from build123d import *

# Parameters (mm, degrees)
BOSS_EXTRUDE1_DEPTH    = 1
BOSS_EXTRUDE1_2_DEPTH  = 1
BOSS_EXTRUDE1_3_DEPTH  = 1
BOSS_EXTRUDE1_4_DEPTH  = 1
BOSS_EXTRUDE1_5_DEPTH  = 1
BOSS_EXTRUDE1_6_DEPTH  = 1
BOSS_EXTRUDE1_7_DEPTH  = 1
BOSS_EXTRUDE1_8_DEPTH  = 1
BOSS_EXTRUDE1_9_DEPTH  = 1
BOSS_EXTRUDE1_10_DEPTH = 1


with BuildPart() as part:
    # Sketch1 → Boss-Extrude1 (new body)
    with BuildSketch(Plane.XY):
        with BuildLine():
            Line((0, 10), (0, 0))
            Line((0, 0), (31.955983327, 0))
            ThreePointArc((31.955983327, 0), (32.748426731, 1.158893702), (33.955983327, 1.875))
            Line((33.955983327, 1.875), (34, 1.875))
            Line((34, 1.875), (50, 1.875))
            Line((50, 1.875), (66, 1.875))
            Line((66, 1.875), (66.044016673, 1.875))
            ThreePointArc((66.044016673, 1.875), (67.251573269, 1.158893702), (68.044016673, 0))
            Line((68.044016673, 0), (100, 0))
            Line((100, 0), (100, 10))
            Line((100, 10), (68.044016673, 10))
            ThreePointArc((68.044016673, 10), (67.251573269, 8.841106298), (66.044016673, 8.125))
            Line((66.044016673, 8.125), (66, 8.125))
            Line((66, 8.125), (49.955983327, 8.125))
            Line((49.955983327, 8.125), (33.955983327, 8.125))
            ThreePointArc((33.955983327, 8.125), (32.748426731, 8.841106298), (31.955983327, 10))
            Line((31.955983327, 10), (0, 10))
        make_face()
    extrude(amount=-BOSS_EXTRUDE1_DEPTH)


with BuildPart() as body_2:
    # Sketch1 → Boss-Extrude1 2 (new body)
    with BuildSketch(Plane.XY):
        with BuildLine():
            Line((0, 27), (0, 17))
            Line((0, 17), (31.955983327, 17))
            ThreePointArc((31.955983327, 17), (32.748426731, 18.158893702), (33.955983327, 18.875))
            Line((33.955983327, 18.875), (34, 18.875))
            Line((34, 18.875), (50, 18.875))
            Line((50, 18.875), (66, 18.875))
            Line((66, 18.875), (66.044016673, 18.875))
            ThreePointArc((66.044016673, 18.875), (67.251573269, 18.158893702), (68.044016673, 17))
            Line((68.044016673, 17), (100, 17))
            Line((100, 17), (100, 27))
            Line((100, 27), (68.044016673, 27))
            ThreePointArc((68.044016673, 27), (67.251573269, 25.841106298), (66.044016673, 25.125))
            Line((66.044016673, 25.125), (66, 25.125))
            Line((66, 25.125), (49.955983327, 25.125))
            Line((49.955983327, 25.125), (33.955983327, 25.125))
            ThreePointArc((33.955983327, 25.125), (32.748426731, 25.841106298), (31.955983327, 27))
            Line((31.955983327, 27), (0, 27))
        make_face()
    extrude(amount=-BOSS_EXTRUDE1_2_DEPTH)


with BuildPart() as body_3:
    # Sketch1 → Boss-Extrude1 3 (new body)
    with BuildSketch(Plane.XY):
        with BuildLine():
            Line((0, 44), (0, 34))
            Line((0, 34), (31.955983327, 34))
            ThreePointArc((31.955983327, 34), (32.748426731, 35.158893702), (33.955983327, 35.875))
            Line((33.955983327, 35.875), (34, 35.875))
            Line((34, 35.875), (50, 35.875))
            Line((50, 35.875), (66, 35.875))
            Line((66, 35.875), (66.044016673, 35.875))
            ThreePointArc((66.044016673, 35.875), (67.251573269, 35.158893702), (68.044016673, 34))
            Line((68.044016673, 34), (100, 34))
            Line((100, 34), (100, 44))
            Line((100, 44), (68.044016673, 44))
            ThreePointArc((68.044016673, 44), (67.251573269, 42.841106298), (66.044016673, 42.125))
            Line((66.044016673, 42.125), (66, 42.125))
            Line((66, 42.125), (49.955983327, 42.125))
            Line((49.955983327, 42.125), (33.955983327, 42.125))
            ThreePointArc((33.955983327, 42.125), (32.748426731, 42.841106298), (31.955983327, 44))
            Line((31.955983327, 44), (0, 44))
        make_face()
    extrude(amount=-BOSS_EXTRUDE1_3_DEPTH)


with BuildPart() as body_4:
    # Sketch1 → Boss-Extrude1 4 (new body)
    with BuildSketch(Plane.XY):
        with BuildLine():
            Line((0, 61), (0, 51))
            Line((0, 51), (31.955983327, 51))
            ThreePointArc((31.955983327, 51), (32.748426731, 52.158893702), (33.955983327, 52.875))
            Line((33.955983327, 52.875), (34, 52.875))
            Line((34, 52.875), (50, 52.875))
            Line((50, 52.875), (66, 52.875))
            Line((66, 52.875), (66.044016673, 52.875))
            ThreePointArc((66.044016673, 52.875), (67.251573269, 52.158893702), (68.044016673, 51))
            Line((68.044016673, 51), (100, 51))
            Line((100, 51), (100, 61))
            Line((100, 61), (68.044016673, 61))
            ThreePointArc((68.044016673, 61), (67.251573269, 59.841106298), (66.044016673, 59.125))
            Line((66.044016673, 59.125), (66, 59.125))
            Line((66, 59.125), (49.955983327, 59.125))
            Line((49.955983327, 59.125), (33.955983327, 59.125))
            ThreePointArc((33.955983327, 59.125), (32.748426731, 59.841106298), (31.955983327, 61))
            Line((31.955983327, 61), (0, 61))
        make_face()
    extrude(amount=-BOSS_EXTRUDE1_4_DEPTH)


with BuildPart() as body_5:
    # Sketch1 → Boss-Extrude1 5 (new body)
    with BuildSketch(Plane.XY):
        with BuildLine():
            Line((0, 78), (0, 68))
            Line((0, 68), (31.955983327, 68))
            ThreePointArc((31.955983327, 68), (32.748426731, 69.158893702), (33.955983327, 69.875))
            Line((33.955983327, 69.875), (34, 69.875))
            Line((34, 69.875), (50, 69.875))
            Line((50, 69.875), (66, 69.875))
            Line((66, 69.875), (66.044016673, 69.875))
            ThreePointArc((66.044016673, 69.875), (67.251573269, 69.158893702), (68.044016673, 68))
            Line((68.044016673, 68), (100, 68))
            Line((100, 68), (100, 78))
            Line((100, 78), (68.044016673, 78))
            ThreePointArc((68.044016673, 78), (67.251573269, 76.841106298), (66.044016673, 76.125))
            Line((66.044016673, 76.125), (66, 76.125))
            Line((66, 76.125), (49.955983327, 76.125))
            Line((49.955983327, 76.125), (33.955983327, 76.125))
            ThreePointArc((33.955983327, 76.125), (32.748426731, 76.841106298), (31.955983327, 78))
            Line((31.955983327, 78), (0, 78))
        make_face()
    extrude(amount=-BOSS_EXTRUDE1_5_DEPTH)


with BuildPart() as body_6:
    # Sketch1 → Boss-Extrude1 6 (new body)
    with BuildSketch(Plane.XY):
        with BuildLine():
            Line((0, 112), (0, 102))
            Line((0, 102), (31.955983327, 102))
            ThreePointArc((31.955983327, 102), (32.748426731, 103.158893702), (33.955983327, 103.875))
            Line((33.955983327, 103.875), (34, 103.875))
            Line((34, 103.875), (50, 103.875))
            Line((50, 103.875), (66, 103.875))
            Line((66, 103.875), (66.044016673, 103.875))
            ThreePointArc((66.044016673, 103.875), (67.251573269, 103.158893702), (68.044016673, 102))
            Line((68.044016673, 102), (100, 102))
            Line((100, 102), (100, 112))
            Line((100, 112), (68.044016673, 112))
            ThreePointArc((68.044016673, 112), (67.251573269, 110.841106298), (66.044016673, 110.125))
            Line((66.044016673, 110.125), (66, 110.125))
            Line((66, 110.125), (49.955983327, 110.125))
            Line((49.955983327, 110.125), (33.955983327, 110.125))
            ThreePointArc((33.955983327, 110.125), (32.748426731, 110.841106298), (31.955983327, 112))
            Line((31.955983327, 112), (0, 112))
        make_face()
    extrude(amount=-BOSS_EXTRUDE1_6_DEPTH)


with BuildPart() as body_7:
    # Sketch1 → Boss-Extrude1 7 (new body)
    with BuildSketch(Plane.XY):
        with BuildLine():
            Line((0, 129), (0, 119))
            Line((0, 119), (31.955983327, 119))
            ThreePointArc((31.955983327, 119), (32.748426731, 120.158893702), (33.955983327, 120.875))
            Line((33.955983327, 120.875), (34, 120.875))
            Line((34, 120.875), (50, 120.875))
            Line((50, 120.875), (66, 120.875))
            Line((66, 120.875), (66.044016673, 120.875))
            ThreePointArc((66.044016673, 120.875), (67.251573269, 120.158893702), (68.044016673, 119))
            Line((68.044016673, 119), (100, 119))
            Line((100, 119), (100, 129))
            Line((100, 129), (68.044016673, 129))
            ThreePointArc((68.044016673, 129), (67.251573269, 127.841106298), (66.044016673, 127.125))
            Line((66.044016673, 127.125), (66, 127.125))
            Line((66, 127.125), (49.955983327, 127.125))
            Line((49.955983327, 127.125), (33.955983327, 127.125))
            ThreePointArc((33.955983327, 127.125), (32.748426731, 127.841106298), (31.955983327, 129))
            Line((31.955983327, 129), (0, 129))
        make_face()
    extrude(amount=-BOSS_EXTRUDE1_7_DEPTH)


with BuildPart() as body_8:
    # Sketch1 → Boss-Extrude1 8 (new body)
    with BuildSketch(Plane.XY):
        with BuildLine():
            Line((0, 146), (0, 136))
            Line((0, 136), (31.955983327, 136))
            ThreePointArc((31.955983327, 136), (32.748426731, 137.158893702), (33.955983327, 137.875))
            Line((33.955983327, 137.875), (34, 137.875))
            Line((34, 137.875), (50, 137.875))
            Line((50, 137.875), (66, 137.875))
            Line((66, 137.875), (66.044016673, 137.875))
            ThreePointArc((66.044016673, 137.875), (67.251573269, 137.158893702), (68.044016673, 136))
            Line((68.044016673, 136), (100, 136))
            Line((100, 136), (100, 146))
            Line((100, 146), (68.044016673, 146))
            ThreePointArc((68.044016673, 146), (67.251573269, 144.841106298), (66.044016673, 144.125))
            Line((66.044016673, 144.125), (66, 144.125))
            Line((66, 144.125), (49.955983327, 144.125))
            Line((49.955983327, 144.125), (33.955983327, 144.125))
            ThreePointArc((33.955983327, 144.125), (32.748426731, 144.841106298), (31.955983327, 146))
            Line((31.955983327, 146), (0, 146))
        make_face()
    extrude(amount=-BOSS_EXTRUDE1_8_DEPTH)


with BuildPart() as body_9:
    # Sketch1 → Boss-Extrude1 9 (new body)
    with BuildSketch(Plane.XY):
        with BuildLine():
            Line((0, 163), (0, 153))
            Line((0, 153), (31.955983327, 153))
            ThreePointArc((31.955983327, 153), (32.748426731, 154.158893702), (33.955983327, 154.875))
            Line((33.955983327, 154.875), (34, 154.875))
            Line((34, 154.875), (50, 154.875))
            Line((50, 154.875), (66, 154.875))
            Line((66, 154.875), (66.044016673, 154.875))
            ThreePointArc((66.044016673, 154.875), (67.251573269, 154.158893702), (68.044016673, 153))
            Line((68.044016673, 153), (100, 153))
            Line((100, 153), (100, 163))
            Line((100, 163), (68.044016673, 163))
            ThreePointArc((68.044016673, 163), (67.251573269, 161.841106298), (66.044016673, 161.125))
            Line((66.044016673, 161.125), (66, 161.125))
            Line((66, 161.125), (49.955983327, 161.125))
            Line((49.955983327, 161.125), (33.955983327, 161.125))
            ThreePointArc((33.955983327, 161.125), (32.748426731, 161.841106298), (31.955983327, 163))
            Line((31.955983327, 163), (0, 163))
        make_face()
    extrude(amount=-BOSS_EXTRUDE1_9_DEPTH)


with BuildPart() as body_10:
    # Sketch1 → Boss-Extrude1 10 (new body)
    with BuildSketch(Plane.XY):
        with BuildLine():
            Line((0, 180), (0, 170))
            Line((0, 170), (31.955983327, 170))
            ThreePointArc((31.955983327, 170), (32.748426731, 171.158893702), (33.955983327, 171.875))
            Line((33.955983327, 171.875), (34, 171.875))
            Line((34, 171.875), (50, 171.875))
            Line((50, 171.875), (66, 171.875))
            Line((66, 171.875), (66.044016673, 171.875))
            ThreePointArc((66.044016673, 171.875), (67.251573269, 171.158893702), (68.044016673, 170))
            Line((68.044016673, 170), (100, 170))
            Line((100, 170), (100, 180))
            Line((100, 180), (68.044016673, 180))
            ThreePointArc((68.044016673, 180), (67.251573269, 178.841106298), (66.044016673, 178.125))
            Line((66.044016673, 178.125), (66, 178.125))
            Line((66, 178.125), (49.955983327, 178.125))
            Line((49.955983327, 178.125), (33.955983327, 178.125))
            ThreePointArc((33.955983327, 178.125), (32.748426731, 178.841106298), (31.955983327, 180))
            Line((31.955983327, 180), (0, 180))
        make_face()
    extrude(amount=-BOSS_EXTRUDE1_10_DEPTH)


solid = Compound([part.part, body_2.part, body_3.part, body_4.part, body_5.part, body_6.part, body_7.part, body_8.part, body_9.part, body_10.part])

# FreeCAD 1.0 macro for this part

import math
import FreeCAD as App
import Part
import Sketcher
from FreeCAD import Vector

doc = App.newDocument("Part")
body = doc.addObject("PartDesign::Body", "Body")

# Sketch on XY plane
sketch1 = body.newObject("Sketcher::SketchObject", "Sketch")
sketch1.AttachmentSupport = (doc.getObject("XY_Plane"), [""])
sketch1.MapMode = "FlatFace"
sketch1.addGeometry(Part.LineSegment(Vector(0, 10, 0), Vector(0, 0, 0)), False)
sketch1.addGeometry(Part.LineSegment(Vector(0, 0, 0), Vector(32, 0, 0)), False)
sketch1.addGeometry(Part.ArcOfCircle(Part.Circle(Vector(35, -1.2, 0), Vector(0, 0, 1), 3.2), math.radians(108), math.radians(158)), False)
sketch1.addGeometry(Part.LineSegment(Vector(34, 1.9, 0), Vector(66, 1.9, 0)), False)
sketch1.addGeometry(Part.ArcOfCircle(Part.Circle(Vector(65, -1.2, 0), Vector(0, 0, 1), 3.2), math.radians(22), math.radians(72)), False)
sketch1.addGeometry(Part.LineSegment(Vector(68, 0, 0), Vector(100, 0, 0)), False)
sketch1.addGeometry(Part.LineSegment(Vector(100, 0, 0), Vector(100, 10, 0)), False)
sketch1.addGeometry(Part.LineSegment(Vector(100, 10, 0), Vector(68, 10, 0)), False)
sketch1.addGeometry(Part.ArcOfCircle(Part.Circle(Vector(65, 11.2, 0), Vector(0, 0, 1), 3.2), math.radians(-72), math.radians(-22)), False)
sketch1.addGeometry(Part.LineSegment(Vector(66, 8.1, 0), Vector(34, 8.1, 0)), False)
sketch1.addGeometry(Part.ArcOfCircle(Part.Circle(Vector(35, 11.2, 0), Vector(0, 0, 1), 3.2), math.radians(-158), math.radians(-108)), False)
sketch1.addGeometry(Part.LineSegment(Vector(32, 10, 0), Vector(0, 10, 0)), False)
sketch1.addConstraint(Sketcher.Constraint("Coincident", 0, 2, 1, 1))
sketch1.addConstraint(Sketcher.Constraint("Coincident", 1, 2, 2, 2))
sketch1.addConstraint(Sketcher.Constraint("Coincident", 2, 1, 3, 1))
sketch1.addConstraint(Sketcher.Constraint("Coincident", 3, 2, 4, 2))
sketch1.addConstraint(Sketcher.Constraint("Coincident", 4, 1, 5, 1))
sketch1.addConstraint(Sketcher.Constraint("Coincident", 5, 2, 6, 1))
sketch1.addConstraint(Sketcher.Constraint("Coincident", 6, 2, 7, 1))
sketch1.addConstraint(Sketcher.Constraint("Coincident", 7, 2, 8, 2))
sketch1.addConstraint(Sketcher.Constraint("Coincident", 8, 1, 9, 1))
sketch1.addConstraint(Sketcher.Constraint("Coincident", 9, 2, 10, 2))
sketch1.addConstraint(Sketcher.Constraint("Coincident", 10, 1, 11, 1))
sketch1.addConstraint(Sketcher.Constraint("Coincident", 11, 2, 0, 1))
sketch1.addConstraint(Sketcher.Constraint("Vertical", 0))
sketch1.addConstraint(Sketcher.Constraint("Horizontal", 1))
sketch1.addConstraint(Sketcher.Constraint("Horizontal", 3))
sketch1.addConstraint(Sketcher.Constraint("Horizontal", 5))
sketch1.addConstraint(Sketcher.Constraint("Vertical", 6))
sketch1.addConstraint(Sketcher.Constraint("Horizontal", 7))
sketch1.addConstraint(Sketcher.Constraint("Horizontal", 9))
sketch1.addConstraint(Sketcher.Constraint("Horizontal", 11))
sketch1.addConstraint(Sketcher.Constraint("Coincident", 0, 2, -1, 1))
sketch1.addConstraint(Sketcher.Constraint("Equal", 2, 4))
sketch1.addConstraint(Sketcher.Constraint("Equal", 4, 8))
sketch1.addConstraint(Sketcher.Constraint("Equal", 8, 10))
sketch1.addConstraint(Sketcher.Constraint("PointOnObject", 4, 1, -1))
sketch1.addConstraint(Sketcher.Constraint("Horizontal", 2, 3, 4, 3))
sketch1.addConstraint(Sketcher.Constraint("Horizontal", 8, 3, 10, 3))
sketch1.addConstraint(Sketcher.Constraint("Horizontal", 7, 2, 10, 1))
sketch1.addConstraint(Sketcher.Constraint("Vertical", 4, 3, 8, 3))
sketch1.addConstraint(Sketcher.Constraint("Vertical", 2, 3, 10, 3))
sketch1.addConstraint(Sketcher.Constraint("Vertical", 4, 1, 7, 2))
sketch1.addConstraint(Sketcher.Constraint("Vertical", 3, 2, 8, 1))
sketch1.addConstraint(Sketcher.Constraint("Equal", 1, 5))
sketch1.addConstraint(Sketcher.Constraint("DistanceY", 0, 2, 0, 1, 10.0))
sketch1.addConstraint(Sketcher.Constraint("DistanceX", -1, 1, 5, 2, 100.0))
sketch1.addConstraint(Sketcher.Constraint("DistanceX", 1, 2, 2, 1, 2.0))
sketch1.addConstraint(Sketcher.Constraint("DistanceY", 3, 2, 8, 1, 6.25))
sketch1.addConstraint(Sketcher.Constraint("Radius", 2, 3.247425))
sketch1.addConstraint(Sketcher.Constraint("DistanceX", 1, 1, 1, 2, 31.955983))
pad1 = body.newObject("PartDesign::Pad", "Pad")
pad1.Profile = sketch1
pad1.Length = 1
pad1.Reversed = True
body2 = doc.addObject("PartDesign::Body", "Body001")

# Sketch on XY plane
sketch2 = body2.newObject("Sketcher::SketchObject", "Sketch001")
sketch2.AttachmentSupport = (doc.getObject("XY_Plane001"), [""])
sketch2.MapMode = "FlatFace"
sketch2.addGeometry(Part.LineSegment(Vector(0, 27, 0), Vector(0, 17, 0)), False)
sketch2.addGeometry(Part.LineSegment(Vector(0, 17, 0), Vector(32, 17, 0)), False)
sketch2.addGeometry(Part.ArcOfCircle(Part.Circle(Vector(35, 15.8, 0), Vector(0, 0, 1), 3.2), math.radians(108), math.radians(158)), False)
sketch2.addGeometry(Part.LineSegment(Vector(34, 18.9, 0), Vector(66, 18.9, 0)), False)
sketch2.addGeometry(Part.ArcOfCircle(Part.Circle(Vector(65, 15.8, 0), Vector(0, 0, 1), 3.2), math.radians(22), math.radians(72)), False)
sketch2.addGeometry(Part.LineSegment(Vector(68, 17, 0), Vector(100, 17, 0)), False)
sketch2.addGeometry(Part.LineSegment(Vector(100, 17, 0), Vector(100, 27, 0)), False)
sketch2.addGeometry(Part.LineSegment(Vector(100, 27, 0), Vector(68, 27, 0)), False)
sketch2.addGeometry(Part.ArcOfCircle(Part.Circle(Vector(65, 28.2, 0), Vector(0, 0, 1), 3.2), math.radians(-72), math.radians(-22)), False)
sketch2.addGeometry(Part.LineSegment(Vector(66, 25.1, 0), Vector(34, 25.1, 0)), False)
sketch2.addGeometry(Part.ArcOfCircle(Part.Circle(Vector(35, 28.2, 0), Vector(0, 0, 1), 3.2), math.radians(-158), math.radians(-108)), False)
sketch2.addGeometry(Part.LineSegment(Vector(32, 27, 0), Vector(0, 27, 0)), False)
sketch2.addConstraint(Sketcher.Constraint("Coincident", 0, 2, 1, 1))
sketch2.addConstraint(Sketcher.Constraint("Coincident", 1, 2, 2, 2))
sketch2.addConstraint(Sketcher.Constraint("Coincident", 2, 1, 3, 1))
sketch2.addConstraint(Sketcher.Constraint("Coincident", 3, 2, 4, 2))
sketch2.addConstraint(Sketcher.Constraint("Coincident", 4, 1, 5, 1))
sketch2.addConstraint(Sketcher.Constraint("Coincident", 5, 2, 6, 1))
sketch2.addConstraint(Sketcher.Constraint("Coincident", 6, 2, 7, 1))
sketch2.addConstraint(Sketcher.Constraint("Coincident", 7, 2, 8, 2))
sketch2.addConstraint(Sketcher.Constraint("Coincident", 8, 1, 9, 1))
sketch2.addConstraint(Sketcher.Constraint("Coincident", 9, 2, 10, 2))
sketch2.addConstraint(Sketcher.Constraint("Coincident", 10, 1, 11, 1))
sketch2.addConstraint(Sketcher.Constraint("Coincident", 11, 2, 0, 1))
sketch2.addConstraint(Sketcher.Constraint("Vertical", 0))
sketch2.addConstraint(Sketcher.Constraint("Horizontal", 1))
sketch2.addConstraint(Sketcher.Constraint("Horizontal", 3))
sketch2.addConstraint(Sketcher.Constraint("Horizontal", 5))
sketch2.addConstraint(Sketcher.Constraint("Vertical", 6))
sketch2.addConstraint(Sketcher.Constraint("Horizontal", 7))
sketch2.addConstraint(Sketcher.Constraint("Horizontal", 9))
sketch2.addConstraint(Sketcher.Constraint("Horizontal", 11))
sketch2.addConstraint(Sketcher.Constraint("Equal", 2, 4))
sketch2.addConstraint(Sketcher.Constraint("Equal", 4, 8))
sketch2.addConstraint(Sketcher.Constraint("Equal", 8, 10))
sketch2.addConstraint(Sketcher.Constraint("PointOnObject", 0, 2, -2))
sketch2.addConstraint(Sketcher.Constraint("Horizontal", 2, 3, 4, 3))
sketch2.addConstraint(Sketcher.Constraint("Horizontal", 8, 3, 10, 3))
sketch2.addConstraint(Sketcher.Constraint("Horizontal", 1, 2, 4, 1))
sketch2.addConstraint(Sketcher.Constraint("Horizontal", 7, 2, 10, 1))
sketch2.addConstraint(Sketcher.Constraint("Vertical", 4, 3, 8, 3))
sketch2.addConstraint(Sketcher.Constraint("Vertical", 2, 3, 10, 3))
sketch2.addConstraint(Sketcher.Constraint("Vertical", 4, 1, 7, 2))
sketch2.addConstraint(Sketcher.Constraint("Vertical", 3, 2, 8, 1))
sketch2.addConstraint(Sketcher.Constraint("Equal", 1, 5))
sketch2.addConstraint(Sketcher.Constraint("DistanceY", 0, 2, 0, 1, 10.0))
sketch2.addConstraint(Sketcher.Constraint("DistanceY", -1, 1, 0, 2, 17.0))
sketch2.addConstraint(Sketcher.Constraint("DistanceX", -1, 1, 5, 2, 100.0))
sketch2.addConstraint(Sketcher.Constraint("DistanceX", 1, 2, 2, 1, 2.0))
sketch2.addConstraint(Sketcher.Constraint("DistanceY", 3, 2, 8, 1, 6.25))
sketch2.addConstraint(Sketcher.Constraint("Radius", 2, 3.247425))
sketch2.addConstraint(Sketcher.Constraint("DistanceX", 1, 1, 1, 2, 31.955983))
pad2 = body2.newObject("PartDesign::Pad", "Pad001")
pad2.Profile = sketch2
pad2.Length = 1
pad2.Reversed = True
body3 = doc.addObject("PartDesign::Body", "Body002")

# Sketch on XY plane
sketch3 = body3.newObject("Sketcher::SketchObject", "Sketch002")
sketch3.AttachmentSupport = (doc.getObject("XY_Plane002"), [""])
sketch3.MapMode = "FlatFace"
sketch3.addGeometry(Part.LineSegment(Vector(0, 44, 0), Vector(0, 34, 0)), False)
sketch3.addGeometry(Part.LineSegment(Vector(0, 34, 0), Vector(32, 34, 0)), False)
sketch3.addGeometry(Part.ArcOfCircle(Part.Circle(Vector(35, 32.8, 0), Vector(0, 0, 1), 3.2), math.radians(108), math.radians(158)), False)
sketch3.addGeometry(Part.LineSegment(Vector(34, 35.9, 0), Vector(66, 35.9, 0)), False)
sketch3.addGeometry(Part.ArcOfCircle(Part.Circle(Vector(65, 32.8, 0), Vector(0, 0, 1), 3.2), math.radians(22), math.radians(72)), False)
sketch3.addGeometry(Part.LineSegment(Vector(68, 34, 0), Vector(100, 34, 0)), False)
sketch3.addGeometry(Part.LineSegment(Vector(100, 34, 0), Vector(100, 44, 0)), False)
sketch3.addGeometry(Part.LineSegment(Vector(100, 44, 0), Vector(68, 44, 0)), False)
sketch3.addGeometry(Part.ArcOfCircle(Part.Circle(Vector(65, 45.2, 0), Vector(0, 0, 1), 3.2), math.radians(-72), math.radians(-22)), False)
sketch3.addGeometry(Part.LineSegment(Vector(66, 42.1, 0), Vector(34, 42.1, 0)), False)
sketch3.addGeometry(Part.ArcOfCircle(Part.Circle(Vector(35, 45.2, 0), Vector(0, 0, 1), 3.2), math.radians(-158), math.radians(-108)), False)
sketch3.addGeometry(Part.LineSegment(Vector(32, 44, 0), Vector(0, 44, 0)), False)
sketch3.addConstraint(Sketcher.Constraint("Coincident", 0, 2, 1, 1))
sketch3.addConstraint(Sketcher.Constraint("Coincident", 1, 2, 2, 2))
sketch3.addConstraint(Sketcher.Constraint("Coincident", 2, 1, 3, 1))
sketch3.addConstraint(Sketcher.Constraint("Coincident", 3, 2, 4, 2))
sketch3.addConstraint(Sketcher.Constraint("Coincident", 4, 1, 5, 1))
sketch3.addConstraint(Sketcher.Constraint("Coincident", 5, 2, 6, 1))
sketch3.addConstraint(Sketcher.Constraint("Coincident", 6, 2, 7, 1))
sketch3.addConstraint(Sketcher.Constraint("Coincident", 7, 2, 8, 2))
sketch3.addConstraint(Sketcher.Constraint("Coincident", 8, 1, 9, 1))
sketch3.addConstraint(Sketcher.Constraint("Coincident", 9, 2, 10, 2))
sketch3.addConstraint(Sketcher.Constraint("Coincident", 10, 1, 11, 1))
sketch3.addConstraint(Sketcher.Constraint("Coincident", 11, 2, 0, 1))
sketch3.addConstraint(Sketcher.Constraint("Vertical", 0))
sketch3.addConstraint(Sketcher.Constraint("Horizontal", 1))
sketch3.addConstraint(Sketcher.Constraint("Horizontal", 3))
sketch3.addConstraint(Sketcher.Constraint("Horizontal", 5))
sketch3.addConstraint(Sketcher.Constraint("Vertical", 6))
sketch3.addConstraint(Sketcher.Constraint("Horizontal", 7))
sketch3.addConstraint(Sketcher.Constraint("Horizontal", 9))
sketch3.addConstraint(Sketcher.Constraint("Horizontal", 11))
sketch3.addConstraint(Sketcher.Constraint("Equal", 2, 4))
sketch3.addConstraint(Sketcher.Constraint("Equal", 4, 8))
sketch3.addConstraint(Sketcher.Constraint("Equal", 8, 10))
sketch3.addConstraint(Sketcher.Constraint("PointOnObject", 0, 2, -2))
sketch3.addConstraint(Sketcher.Constraint("Horizontal", 2, 3, 4, 3))
sketch3.addConstraint(Sketcher.Constraint("Horizontal", 8, 3, 10, 3))
sketch3.addConstraint(Sketcher.Constraint("Horizontal", 1, 2, 4, 1))
sketch3.addConstraint(Sketcher.Constraint("Horizontal", 7, 2, 10, 1))
sketch3.addConstraint(Sketcher.Constraint("Vertical", 4, 3, 8, 3))
sketch3.addConstraint(Sketcher.Constraint("Vertical", 2, 3, 10, 3))
sketch3.addConstraint(Sketcher.Constraint("Vertical", 4, 1, 7, 2))
sketch3.addConstraint(Sketcher.Constraint("Vertical", 3, 2, 8, 1))
sketch3.addConstraint(Sketcher.Constraint("Equal", 1, 5))
sketch3.addConstraint(Sketcher.Constraint("DistanceY", 0, 2, 0, 1, 10.0))
sketch3.addConstraint(Sketcher.Constraint("DistanceY", -1, 1, 0, 2, 34.0))
sketch3.addConstraint(Sketcher.Constraint("DistanceX", -1, 1, 5, 2, 100.0))
sketch3.addConstraint(Sketcher.Constraint("DistanceX", 1, 2, 2, 1, 2.0))
sketch3.addConstraint(Sketcher.Constraint("DistanceY", 3, 2, 8, 1, 6.25))
sketch3.addConstraint(Sketcher.Constraint("Radius", 2, 3.247425))
sketch3.addConstraint(Sketcher.Constraint("DistanceX", 1, 1, 1, 2, 31.955983))
pad3 = body3.newObject("PartDesign::Pad", "Pad002")
pad3.Profile = sketch3
pad3.Length = 1
pad3.Reversed = True
body4 = doc.addObject("PartDesign::Body", "Body003")

# Sketch on XY plane
sketch4 = body4.newObject("Sketcher::SketchObject", "Sketch003")
sketch4.AttachmentSupport = (doc.getObject("XY_Plane003"), [""])
sketch4.MapMode = "FlatFace"
sketch4.addGeometry(Part.LineSegment(Vector(0, 61, 0), Vector(0, 51, 0)), False)
sketch4.addGeometry(Part.LineSegment(Vector(0, 51, 0), Vector(32, 51, 0)), False)
sketch4.addGeometry(Part.ArcOfCircle(Part.Circle(Vector(35, 49.8, 0), Vector(0, 0, 1), 3.2), math.radians(108), math.radians(158)), False)
sketch4.addGeometry(Part.LineSegment(Vector(34, 52.9, 0), Vector(66, 52.9, 0)), False)
sketch4.addGeometry(Part.ArcOfCircle(Part.Circle(Vector(65, 49.8, 0), Vector(0, 0, 1), 3.2), math.radians(22), math.radians(72)), False)
sketch4.addGeometry(Part.LineSegment(Vector(68, 51, 0), Vector(100, 51, 0)), False)
sketch4.addGeometry(Part.LineSegment(Vector(100, 51, 0), Vector(100, 61, 0)), False)
sketch4.addGeometry(Part.LineSegment(Vector(100, 61, 0), Vector(68, 61, 0)), False)
sketch4.addGeometry(Part.ArcOfCircle(Part.Circle(Vector(65, 62.2, 0), Vector(0, 0, 1), 3.2), math.radians(-72), math.radians(-22)), False)
sketch4.addGeometry(Part.LineSegment(Vector(66, 59.1, 0), Vector(34, 59.1, 0)), False)
sketch4.addGeometry(Part.ArcOfCircle(Part.Circle(Vector(35, 62.2, 0), Vector(0, 0, 1), 3.2), math.radians(-158), math.radians(-108)), False)
sketch4.addGeometry(Part.LineSegment(Vector(32, 61, 0), Vector(0, 61, 0)), False)
sketch4.addConstraint(Sketcher.Constraint("Coincident", 0, 2, 1, 1))
sketch4.addConstraint(Sketcher.Constraint("Coincident", 1, 2, 2, 2))
sketch4.addConstraint(Sketcher.Constraint("Coincident", 2, 1, 3, 1))
sketch4.addConstraint(Sketcher.Constraint("Coincident", 3, 2, 4, 2))
sketch4.addConstraint(Sketcher.Constraint("Coincident", 4, 1, 5, 1))
sketch4.addConstraint(Sketcher.Constraint("Coincident", 5, 2, 6, 1))
sketch4.addConstraint(Sketcher.Constraint("Coincident", 6, 2, 7, 1))
sketch4.addConstraint(Sketcher.Constraint("Coincident", 7, 2, 8, 2))
sketch4.addConstraint(Sketcher.Constraint("Coincident", 8, 1, 9, 1))
sketch4.addConstraint(Sketcher.Constraint("Coincident", 9, 2, 10, 2))
sketch4.addConstraint(Sketcher.Constraint("Coincident", 10, 1, 11, 1))
sketch4.addConstraint(Sketcher.Constraint("Coincident", 11, 2, 0, 1))
sketch4.addConstraint(Sketcher.Constraint("Vertical", 0))
sketch4.addConstraint(Sketcher.Constraint("Horizontal", 1))
sketch4.addConstraint(Sketcher.Constraint("Horizontal", 3))
sketch4.addConstraint(Sketcher.Constraint("Horizontal", 5))
sketch4.addConstraint(Sketcher.Constraint("Vertical", 6))
sketch4.addConstraint(Sketcher.Constraint("Horizontal", 7))
sketch4.addConstraint(Sketcher.Constraint("Horizontal", 9))
sketch4.addConstraint(Sketcher.Constraint("Horizontal", 11))
sketch4.addConstraint(Sketcher.Constraint("Equal", 2, 4))
sketch4.addConstraint(Sketcher.Constraint("Equal", 4, 8))
sketch4.addConstraint(Sketcher.Constraint("Equal", 8, 10))
sketch4.addConstraint(Sketcher.Constraint("PointOnObject", 0, 2, -2))
sketch4.addConstraint(Sketcher.Constraint("Horizontal", 2, 3, 4, 3))
sketch4.addConstraint(Sketcher.Constraint("Horizontal", 8, 3, 10, 3))
sketch4.addConstraint(Sketcher.Constraint("Horizontal", 1, 2, 4, 1))
sketch4.addConstraint(Sketcher.Constraint("Horizontal", 7, 2, 10, 1))
sketch4.addConstraint(Sketcher.Constraint("Vertical", 4, 3, 8, 3))
sketch4.addConstraint(Sketcher.Constraint("Vertical", 2, 3, 10, 3))
sketch4.addConstraint(Sketcher.Constraint("Vertical", 4, 1, 7, 2))
sketch4.addConstraint(Sketcher.Constraint("Vertical", 3, 2, 8, 1))
sketch4.addConstraint(Sketcher.Constraint("Equal", 1, 5))
sketch4.addConstraint(Sketcher.Constraint("DistanceY", 0, 2, 0, 1, 10.0))
sketch4.addConstraint(Sketcher.Constraint("DistanceY", -1, 1, 0, 2, 51.0))
sketch4.addConstraint(Sketcher.Constraint("DistanceX", -1, 1, 5, 2, 100.0))
sketch4.addConstraint(Sketcher.Constraint("DistanceX", 1, 2, 2, 1, 2.0))
sketch4.addConstraint(Sketcher.Constraint("DistanceY", 3, 2, 8, 1, 6.25))
sketch4.addConstraint(Sketcher.Constraint("Radius", 2, 3.247425))
sketch4.addConstraint(Sketcher.Constraint("DistanceX", 1, 1, 1, 2, 31.955983))
pad4 = body4.newObject("PartDesign::Pad", "Pad003")
pad4.Profile = sketch4
pad4.Length = 1
pad4.Reversed = True
body5 = doc.addObject("PartDesign::Body", "Body004")

# Sketch on XY plane
sketch5 = body5.newObject("Sketcher::SketchObject", "Sketch004")
sketch5.AttachmentSupport = (doc.getObject("XY_Plane004"), [""])
sketch5.MapMode = "FlatFace"
sketch5.addGeometry(Part.LineSegment(Vector(0, 78, 0), Vector(0, 68, 0)), False)
sketch5.addGeometry(Part.LineSegment(Vector(0, 68, 0), Vector(32, 68, 0)), False)
sketch5.addGeometry(Part.ArcOfCircle(Part.Circle(Vector(35, 66.8, 0), Vector(0, 0, 1), 3.2), math.radians(108), math.radians(158)), False)
sketch5.addGeometry(Part.LineSegment(Vector(34, 69.9, 0), Vector(66, 69.9, 0)), False)
sketch5.addGeometry(Part.ArcOfCircle(Part.Circle(Vector(65, 66.8, 0), Vector(0, 0, 1), 3.2), math.radians(22), math.radians(72)), False)
sketch5.addGeometry(Part.LineSegment(Vector(68, 68, 0), Vector(100, 68, 0)), False)
sketch5.addGeometry(Part.LineSegment(Vector(100, 68, 0), Vector(100, 78, 0)), False)
sketch5.addGeometry(Part.LineSegment(Vector(100, 78, 0), Vector(68, 78, 0)), False)
sketch5.addGeometry(Part.ArcOfCircle(Part.Circle(Vector(65, 79.2, 0), Vector(0, 0, 1), 3.2), math.radians(-72), math.radians(-22)), False)
sketch5.addGeometry(Part.LineSegment(Vector(66, 76.1, 0), Vector(34, 76.1, 0)), False)
sketch5.addGeometry(Part.ArcOfCircle(Part.Circle(Vector(35, 79.2, 0), Vector(0, 0, 1), 3.2), math.radians(-158), math.radians(-108)), False)
sketch5.addGeometry(Part.LineSegment(Vector(32, 78, 0), Vector(0, 78, 0)), False)
sketch5.addConstraint(Sketcher.Constraint("Coincident", 0, 2, 1, 1))
sketch5.addConstraint(Sketcher.Constraint("Coincident", 1, 2, 2, 2))
sketch5.addConstraint(Sketcher.Constraint("Coincident", 2, 1, 3, 1))
sketch5.addConstraint(Sketcher.Constraint("Coincident", 3, 2, 4, 2))
sketch5.addConstraint(Sketcher.Constraint("Coincident", 4, 1, 5, 1))
sketch5.addConstraint(Sketcher.Constraint("Coincident", 5, 2, 6, 1))
sketch5.addConstraint(Sketcher.Constraint("Coincident", 6, 2, 7, 1))
sketch5.addConstraint(Sketcher.Constraint("Coincident", 7, 2, 8, 2))
sketch5.addConstraint(Sketcher.Constraint("Coincident", 8, 1, 9, 1))
sketch5.addConstraint(Sketcher.Constraint("Coincident", 9, 2, 10, 2))
sketch5.addConstraint(Sketcher.Constraint("Coincident", 10, 1, 11, 1))
sketch5.addConstraint(Sketcher.Constraint("Coincident", 11, 2, 0, 1))
sketch5.addConstraint(Sketcher.Constraint("Vertical", 0))
sketch5.addConstraint(Sketcher.Constraint("Horizontal", 1))
sketch5.addConstraint(Sketcher.Constraint("Horizontal", 3))
sketch5.addConstraint(Sketcher.Constraint("Horizontal", 5))
sketch5.addConstraint(Sketcher.Constraint("Vertical", 6))
sketch5.addConstraint(Sketcher.Constraint("Horizontal", 7))
sketch5.addConstraint(Sketcher.Constraint("Horizontal", 9))
sketch5.addConstraint(Sketcher.Constraint("Horizontal", 11))
sketch5.addConstraint(Sketcher.Constraint("Equal", 2, 4))
sketch5.addConstraint(Sketcher.Constraint("Equal", 4, 8))
sketch5.addConstraint(Sketcher.Constraint("Equal", 8, 10))
sketch5.addConstraint(Sketcher.Constraint("PointOnObject", 0, 2, -2))
sketch5.addConstraint(Sketcher.Constraint("Horizontal", 2, 3, 4, 3))
sketch5.addConstraint(Sketcher.Constraint("Horizontal", 8, 3, 10, 3))
sketch5.addConstraint(Sketcher.Constraint("Horizontal", 1, 2, 4, 1))
sketch5.addConstraint(Sketcher.Constraint("Horizontal", 7, 2, 10, 1))
sketch5.addConstraint(Sketcher.Constraint("Vertical", 4, 3, 8, 3))
sketch5.addConstraint(Sketcher.Constraint("Vertical", 2, 3, 10, 3))
sketch5.addConstraint(Sketcher.Constraint("Vertical", 4, 1, 7, 2))
sketch5.addConstraint(Sketcher.Constraint("Vertical", 3, 2, 8, 1))
sketch5.addConstraint(Sketcher.Constraint("Equal", 1, 5))
sketch5.addConstraint(Sketcher.Constraint("DistanceY", 0, 2, 0, 1, 10.0))
sketch5.addConstraint(Sketcher.Constraint("DistanceY", -1, 1, 0, 2, 68.0))
sketch5.addConstraint(Sketcher.Constraint("DistanceX", -1, 1, 5, 2, 100.0))
sketch5.addConstraint(Sketcher.Constraint("DistanceX", 1, 2, 2, 1, 2.0))
sketch5.addConstraint(Sketcher.Constraint("DistanceY", 3, 2, 8, 1, 6.25))
sketch5.addConstraint(Sketcher.Constraint("Radius", 2, 3.247425))
sketch5.addConstraint(Sketcher.Constraint("DistanceX", 1, 1, 1, 2, 31.955983))
pad5 = body5.newObject("PartDesign::Pad", "Pad004")
pad5.Profile = sketch5
pad5.Length = 1
pad5.Reversed = True
body6 = doc.addObject("PartDesign::Body", "Body005")

# Sketch on XY plane
sketch6 = body6.newObject("Sketcher::SketchObject", "Sketch005")
sketch6.AttachmentSupport = (doc.getObject("XY_Plane005"), [""])
sketch6.MapMode = "FlatFace"
sketch6.addGeometry(Part.LineSegment(Vector(0, 112, 0), Vector(0, 102, 0)), False)
sketch6.addGeometry(Part.LineSegment(Vector(0, 102, 0), Vector(32, 102, 0)), False)
sketch6.addGeometry(Part.ArcOfCircle(Part.Circle(Vector(35, 100.8, 0), Vector(0, 0, 1), 3.2), math.radians(108), math.radians(158)), False)
sketch6.addGeometry(Part.LineSegment(Vector(34, 103.9, 0), Vector(66, 103.9, 0)), False)
sketch6.addGeometry(Part.ArcOfCircle(Part.Circle(Vector(65, 100.8, 0), Vector(0, 0, 1), 3.2), math.radians(22), math.radians(72)), False)
sketch6.addGeometry(Part.LineSegment(Vector(68, 102, 0), Vector(100, 102, 0)), False)
sketch6.addGeometry(Part.LineSegment(Vector(100, 102, 0), Vector(100, 112, 0)), False)
sketch6.addGeometry(Part.LineSegment(Vector(100, 112, 0), Vector(68, 112, 0)), False)
sketch6.addGeometry(Part.ArcOfCircle(Part.Circle(Vector(65, 113.2, 0), Vector(0, 0, 1), 3.2), math.radians(-72), math.radians(-22)), False)
sketch6.addGeometry(Part.LineSegment(Vector(66, 110.1, 0), Vector(34, 110.1, 0)), False)
sketch6.addGeometry(Part.ArcOfCircle(Part.Circle(Vector(35, 113.2, 0), Vector(0, 0, 1), 3.2), math.radians(-158), math.radians(-108)), False)
sketch6.addGeometry(Part.LineSegment(Vector(32, 112, 0), Vector(0, 112, 0)), False)
sketch6.addConstraint(Sketcher.Constraint("Coincident", 0, 2, 1, 1))
sketch6.addConstraint(Sketcher.Constraint("Coincident", 1, 2, 2, 2))
sketch6.addConstraint(Sketcher.Constraint("Coincident", 2, 1, 3, 1))
sketch6.addConstraint(Sketcher.Constraint("Coincident", 3, 2, 4, 2))
sketch6.addConstraint(Sketcher.Constraint("Coincident", 4, 1, 5, 1))
sketch6.addConstraint(Sketcher.Constraint("Coincident", 5, 2, 6, 1))
sketch6.addConstraint(Sketcher.Constraint("Coincident", 6, 2, 7, 1))
sketch6.addConstraint(Sketcher.Constraint("Coincident", 7, 2, 8, 2))
sketch6.addConstraint(Sketcher.Constraint("Coincident", 8, 1, 9, 1))
sketch6.addConstraint(Sketcher.Constraint("Coincident", 9, 2, 10, 2))
sketch6.addConstraint(Sketcher.Constraint("Coincident", 10, 1, 11, 1))
sketch6.addConstraint(Sketcher.Constraint("Coincident", 11, 2, 0, 1))
sketch6.addConstraint(Sketcher.Constraint("Vertical", 0))
sketch6.addConstraint(Sketcher.Constraint("Horizontal", 1))
sketch6.addConstraint(Sketcher.Constraint("Horizontal", 3))
sketch6.addConstraint(Sketcher.Constraint("Horizontal", 5))
sketch6.addConstraint(Sketcher.Constraint("Vertical", 6))
sketch6.addConstraint(Sketcher.Constraint("Horizontal", 7))
sketch6.addConstraint(Sketcher.Constraint("Horizontal", 9))
sketch6.addConstraint(Sketcher.Constraint("Horizontal", 11))
sketch6.addConstraint(Sketcher.Constraint("Equal", 2, 4))
sketch6.addConstraint(Sketcher.Constraint("Equal", 4, 8))
sketch6.addConstraint(Sketcher.Constraint("Equal", 8, 10))
sketch6.addConstraint(Sketcher.Constraint("PointOnObject", 0, 2, -2))
sketch6.addConstraint(Sketcher.Constraint("Horizontal", 2, 3, 4, 3))
sketch6.addConstraint(Sketcher.Constraint("Horizontal", 8, 3, 10, 3))
sketch6.addConstraint(Sketcher.Constraint("Horizontal", 1, 2, 4, 1))
sketch6.addConstraint(Sketcher.Constraint("Horizontal", 7, 2, 10, 1))
sketch6.addConstraint(Sketcher.Constraint("Vertical", 4, 3, 8, 3))
sketch6.addConstraint(Sketcher.Constraint("Vertical", 2, 3, 10, 3))
sketch6.addConstraint(Sketcher.Constraint("Vertical", 4, 1, 7, 2))
sketch6.addConstraint(Sketcher.Constraint("Vertical", 3, 2, 8, 1))
sketch6.addConstraint(Sketcher.Constraint("Equal", 1, 5))
sketch6.addConstraint(Sketcher.Constraint("DistanceY", 0, 2, 0, 1, 10.0))
sketch6.addConstraint(Sketcher.Constraint("DistanceY", -1, 1, 0, 2, 102.0))
sketch6.addConstraint(Sketcher.Constraint("DistanceX", -1, 1, 5, 2, 100.0))
sketch6.addConstraint(Sketcher.Constraint("DistanceX", 1, 2, 2, 1, 2.0))
sketch6.addConstraint(Sketcher.Constraint("DistanceY", 3, 2, 8, 1, 6.25))
sketch6.addConstraint(Sketcher.Constraint("Radius", 2, 3.247425))
sketch6.addConstraint(Sketcher.Constraint("DistanceX", 1, 1, 1, 2, 31.955983))
pad6 = body6.newObject("PartDesign::Pad", "Pad005")
pad6.Profile = sketch6
pad6.Length = 1
pad6.Reversed = True
body7 = doc.addObject("PartDesign::Body", "Body006")

# Sketch on XY plane
sketch7 = body7.newObject("Sketcher::SketchObject", "Sketch006")
sketch7.AttachmentSupport = (doc.getObject("XY_Plane006"), [""])
sketch7.MapMode = "FlatFace"
sketch7.addGeometry(Part.LineSegment(Vector(0, 129, 0), Vector(0, 119, 0)), False)
sketch7.addGeometry(Part.LineSegment(Vector(0, 119, 0), Vector(32, 119, 0)), False)
sketch7.addGeometry(Part.ArcOfCircle(Part.Circle(Vector(35, 117.8, 0), Vector(0, 0, 1), 3.2), math.radians(108), math.radians(158)), False)
sketch7.addGeometry(Part.LineSegment(Vector(34, 120.9, 0), Vector(66, 120.9, 0)), False)
sketch7.addGeometry(Part.ArcOfCircle(Part.Circle(Vector(65, 117.8, 0), Vector(0, 0, 1), 3.2), math.radians(22), math.radians(72)), False)
sketch7.addGeometry(Part.LineSegment(Vector(68, 119, 0), Vector(100, 119, 0)), False)
sketch7.addGeometry(Part.LineSegment(Vector(100, 119, 0), Vector(100, 129, 0)), False)
sketch7.addGeometry(Part.LineSegment(Vector(100, 129, 0), Vector(68, 129, 0)), False)
sketch7.addGeometry(Part.ArcOfCircle(Part.Circle(Vector(65, 130.2, 0), Vector(0, 0, 1), 3.2), math.radians(-72), math.radians(-22)), False)
sketch7.addGeometry(Part.LineSegment(Vector(66, 127.1, 0), Vector(34, 127.1, 0)), False)
sketch7.addGeometry(Part.ArcOfCircle(Part.Circle(Vector(35, 130.2, 0), Vector(0, 0, 1), 3.2), math.radians(-158), math.radians(-108)), False)
sketch7.addGeometry(Part.LineSegment(Vector(32, 129, 0), Vector(0, 129, 0)), False)
sketch7.addConstraint(Sketcher.Constraint("Coincident", 0, 2, 1, 1))
sketch7.addConstraint(Sketcher.Constraint("Coincident", 1, 2, 2, 2))
sketch7.addConstraint(Sketcher.Constraint("Coincident", 2, 1, 3, 1))
sketch7.addConstraint(Sketcher.Constraint("Coincident", 3, 2, 4, 2))
sketch7.addConstraint(Sketcher.Constraint("Coincident", 4, 1, 5, 1))
sketch7.addConstraint(Sketcher.Constraint("Coincident", 5, 2, 6, 1))
sketch7.addConstraint(Sketcher.Constraint("Coincident", 6, 2, 7, 1))
sketch7.addConstraint(Sketcher.Constraint("Coincident", 7, 2, 8, 2))
sketch7.addConstraint(Sketcher.Constraint("Coincident", 8, 1, 9, 1))
sketch7.addConstraint(Sketcher.Constraint("Coincident", 9, 2, 10, 2))
sketch7.addConstraint(Sketcher.Constraint("Coincident", 10, 1, 11, 1))
sketch7.addConstraint(Sketcher.Constraint("Coincident", 11, 2, 0, 1))
sketch7.addConstraint(Sketcher.Constraint("Vertical", 0))
sketch7.addConstraint(Sketcher.Constraint("Horizontal", 1))
sketch7.addConstraint(Sketcher.Constraint("Horizontal", 3))
sketch7.addConstraint(Sketcher.Constraint("Horizontal", 5))
sketch7.addConstraint(Sketcher.Constraint("Vertical", 6))
sketch7.addConstraint(Sketcher.Constraint("Horizontal", 7))
sketch7.addConstraint(Sketcher.Constraint("Horizontal", 9))
sketch7.addConstraint(Sketcher.Constraint("Horizontal", 11))
sketch7.addConstraint(Sketcher.Constraint("Equal", 2, 4))
sketch7.addConstraint(Sketcher.Constraint("Equal", 4, 8))
sketch7.addConstraint(Sketcher.Constraint("Equal", 8, 10))
sketch7.addConstraint(Sketcher.Constraint("PointOnObject", 0, 2, -2))
sketch7.addConstraint(Sketcher.Constraint("Horizontal", 2, 3, 4, 3))
sketch7.addConstraint(Sketcher.Constraint("Horizontal", 8, 3, 10, 3))
sketch7.addConstraint(Sketcher.Constraint("Horizontal", 1, 2, 4, 1))
sketch7.addConstraint(Sketcher.Constraint("Horizontal", 7, 2, 10, 1))
sketch7.addConstraint(Sketcher.Constraint("Vertical", 4, 3, 8, 3))
sketch7.addConstraint(Sketcher.Constraint("Vertical", 2, 3, 10, 3))
sketch7.addConstraint(Sketcher.Constraint("Vertical", 4, 1, 7, 2))
sketch7.addConstraint(Sketcher.Constraint("Vertical", 3, 2, 8, 1))
sketch7.addConstraint(Sketcher.Constraint("Equal", 1, 5))
sketch7.addConstraint(Sketcher.Constraint("DistanceY", 0, 2, 0, 1, 10.0))
sketch7.addConstraint(Sketcher.Constraint("DistanceY", -1, 1, 0, 2, 119.0))
sketch7.addConstraint(Sketcher.Constraint("DistanceX", -1, 1, 5, 2, 100.0))
sketch7.addConstraint(Sketcher.Constraint("DistanceX", 1, 2, 2, 1, 2.0))
sketch7.addConstraint(Sketcher.Constraint("DistanceY", 3, 2, 8, 1, 6.25))
sketch7.addConstraint(Sketcher.Constraint("Radius", 2, 3.247425))
sketch7.addConstraint(Sketcher.Constraint("DistanceX", 1, 1, 1, 2, 31.955983))
pad7 = body7.newObject("PartDesign::Pad", "Pad006")
pad7.Profile = sketch7
pad7.Length = 1
pad7.Reversed = True
body8 = doc.addObject("PartDesign::Body", "Body007")

# Sketch on XY plane
sketch8 = body8.newObject("Sketcher::SketchObject", "Sketch007")
sketch8.AttachmentSupport = (doc.getObject("XY_Plane007"), [""])
sketch8.MapMode = "FlatFace"
sketch8.addGeometry(Part.LineSegment(Vector(0, 146, 0), Vector(0, 136, 0)), False)
sketch8.addGeometry(Part.LineSegment(Vector(0, 136, 0), Vector(32, 136, 0)), False)
sketch8.addGeometry(Part.ArcOfCircle(Part.Circle(Vector(35, 134.8, 0), Vector(0, 0, 1), 3.2), math.radians(108), math.radians(158)), False)
sketch8.addGeometry(Part.LineSegment(Vector(34, 137.9, 0), Vector(66, 137.9, 0)), False)
sketch8.addGeometry(Part.ArcOfCircle(Part.Circle(Vector(65, 134.8, 0), Vector(0, 0, 1), 3.2), math.radians(22), math.radians(72)), False)
sketch8.addGeometry(Part.LineSegment(Vector(68, 136, 0), Vector(100, 136, 0)), False)
sketch8.addGeometry(Part.LineSegment(Vector(100, 136, 0), Vector(100, 146, 0)), False)
sketch8.addGeometry(Part.LineSegment(Vector(100, 146, 0), Vector(68, 146, 0)), False)
sketch8.addGeometry(Part.ArcOfCircle(Part.Circle(Vector(65, 147.2, 0), Vector(0, 0, 1), 3.2), math.radians(-72), math.radians(-22)), False)
sketch8.addGeometry(Part.LineSegment(Vector(66, 144.1, 0), Vector(34, 144.1, 0)), False)
sketch8.addGeometry(Part.ArcOfCircle(Part.Circle(Vector(35, 147.2, 0), Vector(0, 0, 1), 3.2), math.radians(-158), math.radians(-108)), False)
sketch8.addGeometry(Part.LineSegment(Vector(32, 146, 0), Vector(0, 146, 0)), False)
sketch8.addConstraint(Sketcher.Constraint("Coincident", 0, 2, 1, 1))
sketch8.addConstraint(Sketcher.Constraint("Coincident", 1, 2, 2, 2))
sketch8.addConstraint(Sketcher.Constraint("Coincident", 2, 1, 3, 1))
sketch8.addConstraint(Sketcher.Constraint("Coincident", 3, 2, 4, 2))
sketch8.addConstraint(Sketcher.Constraint("Coincident", 4, 1, 5, 1))
sketch8.addConstraint(Sketcher.Constraint("Coincident", 5, 2, 6, 1))
sketch8.addConstraint(Sketcher.Constraint("Coincident", 6, 2, 7, 1))
sketch8.addConstraint(Sketcher.Constraint("Coincident", 7, 2, 8, 2))
sketch8.addConstraint(Sketcher.Constraint("Coincident", 8, 1, 9, 1))
sketch8.addConstraint(Sketcher.Constraint("Coincident", 9, 2, 10, 2))
sketch8.addConstraint(Sketcher.Constraint("Coincident", 10, 1, 11, 1))
sketch8.addConstraint(Sketcher.Constraint("Coincident", 11, 2, 0, 1))
sketch8.addConstraint(Sketcher.Constraint("Vertical", 0))
sketch8.addConstraint(Sketcher.Constraint("Horizontal", 1))
sketch8.addConstraint(Sketcher.Constraint("Horizontal", 3))
sketch8.addConstraint(Sketcher.Constraint("Horizontal", 5))
sketch8.addConstraint(Sketcher.Constraint("Vertical", 6))
sketch8.addConstraint(Sketcher.Constraint("Horizontal", 7))
sketch8.addConstraint(Sketcher.Constraint("Horizontal", 9))
sketch8.addConstraint(Sketcher.Constraint("Horizontal", 11))
sketch8.addConstraint(Sketcher.Constraint("Equal", 2, 4))
sketch8.addConstraint(Sketcher.Constraint("Equal", 4, 8))
sketch8.addConstraint(Sketcher.Constraint("Equal", 8, 10))
sketch8.addConstraint(Sketcher.Constraint("PointOnObject", 0, 2, -2))
sketch8.addConstraint(Sketcher.Constraint("Horizontal", 2, 3, 4, 3))
sketch8.addConstraint(Sketcher.Constraint("Horizontal", 8, 3, 10, 3))
sketch8.addConstraint(Sketcher.Constraint("Horizontal", 1, 2, 4, 1))
sketch8.addConstraint(Sketcher.Constraint("Horizontal", 7, 2, 10, 1))
sketch8.addConstraint(Sketcher.Constraint("Vertical", 4, 3, 8, 3))
sketch8.addConstraint(Sketcher.Constraint("Vertical", 2, 3, 10, 3))
sketch8.addConstraint(Sketcher.Constraint("Vertical", 4, 1, 7, 2))
sketch8.addConstraint(Sketcher.Constraint("Vertical", 3, 2, 8, 1))
sketch8.addConstraint(Sketcher.Constraint("Equal", 1, 5))
sketch8.addConstraint(Sketcher.Constraint("DistanceY", 0, 2, 0, 1, 10.0))
sketch8.addConstraint(Sketcher.Constraint("DistanceY", -1, 1, 0, 2, 136.0))
sketch8.addConstraint(Sketcher.Constraint("DistanceX", -1, 1, 5, 2, 100.0))
sketch8.addConstraint(Sketcher.Constraint("DistanceX", 1, 2, 2, 1, 2.0))
sketch8.addConstraint(Sketcher.Constraint("DistanceY", 3, 2, 8, 1, 6.25))
sketch8.addConstraint(Sketcher.Constraint("Radius", 2, 3.247425))
sketch8.addConstraint(Sketcher.Constraint("DistanceX", 1, 1, 1, 2, 31.955983))
pad8 = body8.newObject("PartDesign::Pad", "Pad007")
pad8.Profile = sketch8
pad8.Length = 1
pad8.Reversed = True
body9 = doc.addObject("PartDesign::Body", "Body008")

# Sketch on XY plane
sketch9 = body9.newObject("Sketcher::SketchObject", "Sketch008")
sketch9.AttachmentSupport = (doc.getObject("XY_Plane008"), [""])
sketch9.MapMode = "FlatFace"
sketch9.addGeometry(Part.LineSegment(Vector(0, 163, 0), Vector(0, 153, 0)), False)
sketch9.addGeometry(Part.LineSegment(Vector(0, 153, 0), Vector(32, 153, 0)), False)
sketch9.addGeometry(Part.ArcOfCircle(Part.Circle(Vector(35, 151.8, 0), Vector(0, 0, 1), 3.2), math.radians(108), math.radians(158)), False)
sketch9.addGeometry(Part.LineSegment(Vector(34, 154.9, 0), Vector(66, 154.9, 0)), False)
sketch9.addGeometry(Part.ArcOfCircle(Part.Circle(Vector(65, 151.8, 0), Vector(0, 0, 1), 3.2), math.radians(22), math.radians(72)), False)
sketch9.addGeometry(Part.LineSegment(Vector(68, 153, 0), Vector(100, 153, 0)), False)
sketch9.addGeometry(Part.LineSegment(Vector(100, 153, 0), Vector(100, 163, 0)), False)
sketch9.addGeometry(Part.LineSegment(Vector(100, 163, 0), Vector(68, 163, 0)), False)
sketch9.addGeometry(Part.ArcOfCircle(Part.Circle(Vector(65, 164.2, 0), Vector(0, 0, 1), 3.2), math.radians(-72), math.radians(-22)), False)
sketch9.addGeometry(Part.LineSegment(Vector(66, 161.1, 0), Vector(34, 161.1, 0)), False)
sketch9.addGeometry(Part.ArcOfCircle(Part.Circle(Vector(35, 164.2, 0), Vector(0, 0, 1), 3.2), math.radians(-158), math.radians(-108)), False)
sketch9.addGeometry(Part.LineSegment(Vector(32, 163, 0), Vector(0, 163, 0)), False)
sketch9.addConstraint(Sketcher.Constraint("Coincident", 0, 2, 1, 1))
sketch9.addConstraint(Sketcher.Constraint("Coincident", 1, 2, 2, 2))
sketch9.addConstraint(Sketcher.Constraint("Coincident", 2, 1, 3, 1))
sketch9.addConstraint(Sketcher.Constraint("Coincident", 3, 2, 4, 2))
sketch9.addConstraint(Sketcher.Constraint("Coincident", 4, 1, 5, 1))
sketch9.addConstraint(Sketcher.Constraint("Coincident", 5, 2, 6, 1))
sketch9.addConstraint(Sketcher.Constraint("Coincident", 6, 2, 7, 1))
sketch9.addConstraint(Sketcher.Constraint("Coincident", 7, 2, 8, 2))
sketch9.addConstraint(Sketcher.Constraint("Coincident", 8, 1, 9, 1))
sketch9.addConstraint(Sketcher.Constraint("Coincident", 9, 2, 10, 2))
sketch9.addConstraint(Sketcher.Constraint("Coincident", 10, 1, 11, 1))
sketch9.addConstraint(Sketcher.Constraint("Coincident", 11, 2, 0, 1))
sketch9.addConstraint(Sketcher.Constraint("Vertical", 0))
sketch9.addConstraint(Sketcher.Constraint("Horizontal", 1))
sketch9.addConstraint(Sketcher.Constraint("Horizontal", 3))
sketch9.addConstraint(Sketcher.Constraint("Horizontal", 5))
sketch9.addConstraint(Sketcher.Constraint("Vertical", 6))
sketch9.addConstraint(Sketcher.Constraint("Horizontal", 7))
sketch9.addConstraint(Sketcher.Constraint("Horizontal", 9))
sketch9.addConstraint(Sketcher.Constraint("Horizontal", 11))
sketch9.addConstraint(Sketcher.Constraint("Equal", 2, 4))
sketch9.addConstraint(Sketcher.Constraint("Equal", 4, 8))
sketch9.addConstraint(Sketcher.Constraint("Equal", 8, 10))
sketch9.addConstraint(Sketcher.Constraint("PointOnObject", 0, 2, -2))
sketch9.addConstraint(Sketcher.Constraint("Horizontal", 2, 3, 4, 3))
sketch9.addConstraint(Sketcher.Constraint("Horizontal", 8, 3, 10, 3))
sketch9.addConstraint(Sketcher.Constraint("Horizontal", 1, 2, 4, 1))
sketch9.addConstraint(Sketcher.Constraint("Horizontal", 7, 2, 10, 1))
sketch9.addConstraint(Sketcher.Constraint("Vertical", 4, 3, 8, 3))
sketch9.addConstraint(Sketcher.Constraint("Vertical", 2, 3, 10, 3))
sketch9.addConstraint(Sketcher.Constraint("Vertical", 4, 1, 7, 2))
sketch9.addConstraint(Sketcher.Constraint("Vertical", 3, 2, 8, 1))
sketch9.addConstraint(Sketcher.Constraint("Equal", 1, 5))
sketch9.addConstraint(Sketcher.Constraint("DistanceY", 0, 2, 0, 1, 10.0))
sketch9.addConstraint(Sketcher.Constraint("DistanceY", -1, 1, 0, 2, 153.0))
sketch9.addConstraint(Sketcher.Constraint("DistanceX", -1, 1, 5, 2, 100.0))
sketch9.addConstraint(Sketcher.Constraint("DistanceX", 1, 2, 2, 1, 2.0))
sketch9.addConstraint(Sketcher.Constraint("DistanceY", 3, 2, 8, 1, 6.25))
sketch9.addConstraint(Sketcher.Constraint("Radius", 2, 3.247425))
sketch9.addConstraint(Sketcher.Constraint("DistanceX", 1, 1, 1, 2, 31.955983))
pad9 = body9.newObject("PartDesign::Pad", "Pad008")
pad9.Profile = sketch9
pad9.Length = 1
pad9.Reversed = True
body10 = doc.addObject("PartDesign::Body", "Body009")

# Sketch on XY plane
sketch10 = body10.newObject("Sketcher::SketchObject", "Sketch009")
sketch10.AttachmentSupport = (doc.getObject("XY_Plane009"), [""])
sketch10.MapMode = "FlatFace"
sketch10.addGeometry(Part.LineSegment(Vector(0, 180, 0), Vector(0, 170, 0)), False)
sketch10.addGeometry(Part.LineSegment(Vector(0, 170, 0), Vector(32, 170, 0)), False)
sketch10.addGeometry(Part.ArcOfCircle(Part.Circle(Vector(35, 168.8, 0), Vector(0, 0, 1), 3.2), math.radians(108), math.radians(158)), False)
sketch10.addGeometry(Part.LineSegment(Vector(34, 171.9, 0), Vector(66, 171.9, 0)), False)
sketch10.addGeometry(Part.ArcOfCircle(Part.Circle(Vector(65, 168.8, 0), Vector(0, 0, 1), 3.2), math.radians(22), math.radians(72)), False)
sketch10.addGeometry(Part.LineSegment(Vector(68, 170, 0), Vector(100, 170, 0)), False)
sketch10.addGeometry(Part.LineSegment(Vector(100, 170, 0), Vector(100, 180, 0)), False)
sketch10.addGeometry(Part.LineSegment(Vector(100, 180, 0), Vector(68, 180, 0)), False)
sketch10.addGeometry(Part.ArcOfCircle(Part.Circle(Vector(65, 181.2, 0), Vector(0, 0, 1), 3.2), math.radians(-72), math.radians(-22)), False)
sketch10.addGeometry(Part.LineSegment(Vector(66, 178.1, 0), Vector(34, 178.1, 0)), False)
sketch10.addGeometry(Part.ArcOfCircle(Part.Circle(Vector(35, 181.2, 0), Vector(0, 0, 1), 3.2), math.radians(-158), math.radians(-108)), False)
sketch10.addGeometry(Part.LineSegment(Vector(32, 180, 0), Vector(0, 180, 0)), False)
sketch10.addConstraint(Sketcher.Constraint("Coincident", 0, 2, 1, 1))
sketch10.addConstraint(Sketcher.Constraint("Coincident", 1, 2, 2, 2))
sketch10.addConstraint(Sketcher.Constraint("Coincident", 2, 1, 3, 1))
sketch10.addConstraint(Sketcher.Constraint("Coincident", 3, 2, 4, 2))
sketch10.addConstraint(Sketcher.Constraint("Coincident", 4, 1, 5, 1))
sketch10.addConstraint(Sketcher.Constraint("Coincident", 5, 2, 6, 1))
sketch10.addConstraint(Sketcher.Constraint("Coincident", 6, 2, 7, 1))
sketch10.addConstraint(Sketcher.Constraint("Coincident", 7, 2, 8, 2))
sketch10.addConstraint(Sketcher.Constraint("Coincident", 8, 1, 9, 1))
sketch10.addConstraint(Sketcher.Constraint("Coincident", 9, 2, 10, 2))
sketch10.addConstraint(Sketcher.Constraint("Coincident", 10, 1, 11, 1))
sketch10.addConstraint(Sketcher.Constraint("Coincident", 11, 2, 0, 1))
sketch10.addConstraint(Sketcher.Constraint("Vertical", 0))
sketch10.addConstraint(Sketcher.Constraint("Horizontal", 1))
sketch10.addConstraint(Sketcher.Constraint("Horizontal", 3))
sketch10.addConstraint(Sketcher.Constraint("Horizontal", 5))
sketch10.addConstraint(Sketcher.Constraint("Vertical", 6))
sketch10.addConstraint(Sketcher.Constraint("Horizontal", 7))
sketch10.addConstraint(Sketcher.Constraint("Horizontal", 9))
sketch10.addConstraint(Sketcher.Constraint("Horizontal", 11))
sketch10.addConstraint(Sketcher.Constraint("Equal", 2, 4))
sketch10.addConstraint(Sketcher.Constraint("Equal", 4, 8))
sketch10.addConstraint(Sketcher.Constraint("Equal", 8, 10))
sketch10.addConstraint(Sketcher.Constraint("PointOnObject", 0, 2, -2))
sketch10.addConstraint(Sketcher.Constraint("Horizontal", 2, 3, 4, 3))
sketch10.addConstraint(Sketcher.Constraint("Horizontal", 8, 3, 10, 3))
sketch10.addConstraint(Sketcher.Constraint("Horizontal", 1, 2, 4, 1))
sketch10.addConstraint(Sketcher.Constraint("Horizontal", 7, 2, 10, 1))
sketch10.addConstraint(Sketcher.Constraint("Vertical", 4, 3, 8, 3))
sketch10.addConstraint(Sketcher.Constraint("Vertical", 2, 3, 10, 3))
sketch10.addConstraint(Sketcher.Constraint("Vertical", 4, 1, 7, 2))
sketch10.addConstraint(Sketcher.Constraint("Vertical", 3, 2, 8, 1))
sketch10.addConstraint(Sketcher.Constraint("Equal", 1, 5))
sketch10.addConstraint(Sketcher.Constraint("DistanceY", 0, 2, 0, 1, 10.0))
sketch10.addConstraint(Sketcher.Constraint("DistanceY", -1, 1, 0, 2, 170.0))
sketch10.addConstraint(Sketcher.Constraint("DistanceX", -1, 1, 5, 2, 100.0))
sketch10.addConstraint(Sketcher.Constraint("DistanceX", 1, 2, 2, 1, 2.0))
sketch10.addConstraint(Sketcher.Constraint("DistanceY", 3, 2, 8, 1, 6.25))
sketch10.addConstraint(Sketcher.Constraint("Radius", 2, 3.247425))
sketch10.addConstraint(Sketcher.Constraint("DistanceX", 1, 1, 1, 2, 31.955983))
pad10 = body10.newObject("PartDesign::Pad", "Pad009")
pad10.Profile = sketch10
pad10.Length = 1
pad10.Reversed = True

doc.recompute()
